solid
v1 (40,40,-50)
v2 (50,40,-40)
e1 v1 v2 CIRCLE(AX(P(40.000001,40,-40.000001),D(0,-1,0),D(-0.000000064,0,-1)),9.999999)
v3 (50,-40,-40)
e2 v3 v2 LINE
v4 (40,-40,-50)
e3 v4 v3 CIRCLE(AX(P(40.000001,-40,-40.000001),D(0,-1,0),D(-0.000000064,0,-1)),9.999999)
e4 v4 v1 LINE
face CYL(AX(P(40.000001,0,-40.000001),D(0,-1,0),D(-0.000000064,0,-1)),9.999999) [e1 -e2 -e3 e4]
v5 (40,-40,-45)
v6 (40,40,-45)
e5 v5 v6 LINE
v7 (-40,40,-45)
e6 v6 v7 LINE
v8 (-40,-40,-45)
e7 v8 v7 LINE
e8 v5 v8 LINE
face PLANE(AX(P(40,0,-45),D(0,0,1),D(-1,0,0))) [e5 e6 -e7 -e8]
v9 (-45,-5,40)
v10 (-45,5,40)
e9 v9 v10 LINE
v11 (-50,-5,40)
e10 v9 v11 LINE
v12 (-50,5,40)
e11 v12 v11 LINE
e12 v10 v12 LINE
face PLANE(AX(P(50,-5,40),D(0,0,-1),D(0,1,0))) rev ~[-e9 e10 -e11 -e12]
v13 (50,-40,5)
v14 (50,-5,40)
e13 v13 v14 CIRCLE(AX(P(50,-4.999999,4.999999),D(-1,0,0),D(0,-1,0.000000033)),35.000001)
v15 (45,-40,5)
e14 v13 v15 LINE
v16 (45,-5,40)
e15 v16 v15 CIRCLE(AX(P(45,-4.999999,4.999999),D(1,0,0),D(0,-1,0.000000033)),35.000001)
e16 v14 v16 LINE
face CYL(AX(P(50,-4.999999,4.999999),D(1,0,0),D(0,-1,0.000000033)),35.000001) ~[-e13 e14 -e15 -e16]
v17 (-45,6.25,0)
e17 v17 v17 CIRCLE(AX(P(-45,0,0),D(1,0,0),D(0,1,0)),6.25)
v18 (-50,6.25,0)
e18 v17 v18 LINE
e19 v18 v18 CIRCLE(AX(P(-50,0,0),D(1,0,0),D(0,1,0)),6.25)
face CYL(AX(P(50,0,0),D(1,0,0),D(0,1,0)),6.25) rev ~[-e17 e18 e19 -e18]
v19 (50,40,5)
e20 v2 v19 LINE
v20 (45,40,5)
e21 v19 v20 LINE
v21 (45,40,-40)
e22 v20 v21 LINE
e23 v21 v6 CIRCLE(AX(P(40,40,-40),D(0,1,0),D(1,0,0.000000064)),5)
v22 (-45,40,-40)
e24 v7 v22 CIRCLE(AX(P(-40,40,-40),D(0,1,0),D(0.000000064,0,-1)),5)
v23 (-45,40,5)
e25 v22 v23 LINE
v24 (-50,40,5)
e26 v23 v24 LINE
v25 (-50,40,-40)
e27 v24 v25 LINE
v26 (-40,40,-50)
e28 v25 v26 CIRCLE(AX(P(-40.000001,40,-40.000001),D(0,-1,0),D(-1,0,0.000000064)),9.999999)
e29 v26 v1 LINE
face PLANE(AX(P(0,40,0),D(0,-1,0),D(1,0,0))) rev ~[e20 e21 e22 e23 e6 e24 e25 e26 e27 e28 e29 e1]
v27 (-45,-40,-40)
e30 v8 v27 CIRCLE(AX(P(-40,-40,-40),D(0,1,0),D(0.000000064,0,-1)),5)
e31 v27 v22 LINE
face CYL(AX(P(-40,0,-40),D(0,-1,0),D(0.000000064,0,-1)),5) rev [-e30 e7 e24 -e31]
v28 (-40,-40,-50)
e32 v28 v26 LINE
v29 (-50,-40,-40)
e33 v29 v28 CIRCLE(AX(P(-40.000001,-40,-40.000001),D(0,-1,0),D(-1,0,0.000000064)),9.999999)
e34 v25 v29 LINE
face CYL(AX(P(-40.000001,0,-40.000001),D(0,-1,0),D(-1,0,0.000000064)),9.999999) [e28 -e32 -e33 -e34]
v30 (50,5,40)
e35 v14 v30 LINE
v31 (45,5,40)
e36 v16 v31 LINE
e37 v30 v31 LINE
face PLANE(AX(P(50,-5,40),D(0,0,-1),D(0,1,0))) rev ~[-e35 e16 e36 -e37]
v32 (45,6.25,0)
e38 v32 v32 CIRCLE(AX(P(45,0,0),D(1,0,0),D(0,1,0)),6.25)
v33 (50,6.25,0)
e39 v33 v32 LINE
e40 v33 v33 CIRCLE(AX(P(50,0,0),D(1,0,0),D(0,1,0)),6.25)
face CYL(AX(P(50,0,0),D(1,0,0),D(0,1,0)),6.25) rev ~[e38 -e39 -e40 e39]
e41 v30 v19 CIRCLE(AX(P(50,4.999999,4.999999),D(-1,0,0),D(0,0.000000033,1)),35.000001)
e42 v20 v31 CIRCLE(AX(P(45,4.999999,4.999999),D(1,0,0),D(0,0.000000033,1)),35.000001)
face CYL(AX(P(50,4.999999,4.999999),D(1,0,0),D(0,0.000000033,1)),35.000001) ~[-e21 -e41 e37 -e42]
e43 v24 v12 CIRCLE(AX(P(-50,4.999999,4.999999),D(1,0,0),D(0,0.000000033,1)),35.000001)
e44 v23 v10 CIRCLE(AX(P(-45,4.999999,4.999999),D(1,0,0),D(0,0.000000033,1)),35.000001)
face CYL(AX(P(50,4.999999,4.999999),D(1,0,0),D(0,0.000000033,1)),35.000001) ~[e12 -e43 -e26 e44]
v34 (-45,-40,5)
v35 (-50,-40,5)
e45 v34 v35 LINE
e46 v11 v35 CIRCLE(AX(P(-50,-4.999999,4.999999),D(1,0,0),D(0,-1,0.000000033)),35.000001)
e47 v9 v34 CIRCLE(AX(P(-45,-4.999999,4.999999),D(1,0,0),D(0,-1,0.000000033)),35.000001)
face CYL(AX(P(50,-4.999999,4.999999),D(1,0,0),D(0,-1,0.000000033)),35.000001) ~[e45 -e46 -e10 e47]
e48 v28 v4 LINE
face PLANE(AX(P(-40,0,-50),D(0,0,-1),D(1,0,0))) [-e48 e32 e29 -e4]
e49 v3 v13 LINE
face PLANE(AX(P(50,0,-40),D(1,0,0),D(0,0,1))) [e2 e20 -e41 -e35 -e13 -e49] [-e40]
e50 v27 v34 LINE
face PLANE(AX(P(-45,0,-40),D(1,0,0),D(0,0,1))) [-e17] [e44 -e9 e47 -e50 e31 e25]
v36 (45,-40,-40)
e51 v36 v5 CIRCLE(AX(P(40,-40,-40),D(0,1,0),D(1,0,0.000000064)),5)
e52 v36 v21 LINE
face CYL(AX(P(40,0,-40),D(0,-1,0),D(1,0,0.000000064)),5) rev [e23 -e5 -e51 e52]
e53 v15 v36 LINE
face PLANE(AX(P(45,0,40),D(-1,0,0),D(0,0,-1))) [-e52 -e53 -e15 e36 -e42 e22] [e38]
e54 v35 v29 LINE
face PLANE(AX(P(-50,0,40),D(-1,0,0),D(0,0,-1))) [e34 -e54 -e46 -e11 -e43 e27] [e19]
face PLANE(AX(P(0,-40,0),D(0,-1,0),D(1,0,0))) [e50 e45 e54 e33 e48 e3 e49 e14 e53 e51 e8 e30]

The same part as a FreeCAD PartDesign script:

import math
import FreeCAD as App
import Part
import Sketcher

V = App.Vector
Q = App.Units.Quantity

doc = App.newDocument("Part")
body = doc.addObject("PartDesign::Body", "Body")

# Sketch on XZ plane
sketch1 = body.newObject("Sketcher::SketchObject", "Sketch")
sketch1.AttachmentSupport = (doc.getObject("XZ_Plane"), [""])
sketch1.MapMode = "FlatFace"
sketch1.addGeometry([
    Part.ArcOfCircle(Part.Circle(V(40, 40, 0), V(0, 0, 1), 10), math.radians(0), math.radians(90)),  # 0
    Part.LineSegment(V(40, 50, 0), V(-40, 50, 0)),  # 1
    Part.ArcOfCircle(Part.Circle(V(-40, 40, 0), V(0, 0, 1), 10), math.radians(90), math.radians(180)),  # 2
    Part.LineSegment(V(-50, 40, 0), V(-50, -40, 0)),  # 3
    Part.ArcOfCircle(Part.Circle(V(-40, -40, 0), V(0, 0, 1), 10), math.radians(180), math.radians(270)),  # 4
    Part.LineSegment(V(-40, -50, 0), V(40, -50, 0)),  # 5
    Part.ArcOfCircle(Part.Circle(V(40, -40, 0), V(0, 0, 1), 10), math.radians(-90), math.radians(0)),  # 6
    Part.LineSegment(V(50, -40, 0), V(50, 40, 0)),  # 7
    Part.LineSegment(V(-40, 45, 0), V(40, 45, 0)),  # 8
    Part.ArcOfCircle(Part.Circle(V(40, 40, 0), V(0, 0, 1), 5), math.radians(0), math.radians(90)),  # 9
    Part.LineSegment(V(45, 40, 0), V(45, -40, 0)),  # 10
    Part.ArcOfCircle(Part.Circle(V(40, -40, 0), V(0, 0, 1), 5), math.radians(-90), math.radians(0)),  # 11
    Part.LineSegment(V(40, -45, 0), V(-40, -45, 0)),  # 12
    Part.ArcOfCircle(Part.Circle(V(-40, -40, 0), V(0, 0, 1), 5), math.radians(180), math.radians(270)),  # 13
    Part.LineSegment(V(-45, -40, 0), V(-45, 40, 0)),  # 14
    Part.ArcOfCircle(Part.Circle(V(-40, 40, 0), V(0, 0, 1), 5), math.radians(90), math.radians(180)),  # 15
], False)
sketch1.addConstraint([
    Sketcher.Constraint("Tangent", 0, 2, 1, 1),
    Sketcher.Constraint("Tangent", 1, 2, 2, 1),
    Sketcher.Constraint("Tangent", 2, 2, 3, 1),
    Sketcher.Constraint("Tangent", 3, 2, 4, 1),
    Sketcher.Constraint("Tangent", 4, 2, 5, 1),
    Sketcher.Constraint("Tangent", 5, 2, 6, 1),
    Sketcher.Constraint("Tangent", 6, 2, 7, 1),
    Sketcher.Constraint("Tangent", 7, 2, 0, 1),
    Sketcher.Constraint("Tangent", 8, 2, 9, 2),
    Sketcher.Constraint("Tangent", 9, 1, 10, 1),
    Sketcher.Constraint("Tangent", 10, 2, 11, 2),
    Sketcher.Constraint("Tangent", 11, 1, 12, 1),
    Sketcher.Constraint("Tangent", 12, 2, 13, 2),
    Sketcher.Constraint("Tangent", 13, 1, 14, 1),
    Sketcher.Constraint("Tangent", 14, 2, 15, 2),
    Sketcher.Constraint("Tangent", 15, 1, 8, 1),
    Sketcher.Constraint("Horizontal", 1),
    Sketcher.Constraint("Vertical", 3),
    Sketcher.Constraint("Horizontal", 5),
    Sketcher.Constraint("Vertical", 7),
    Sketcher.Constraint("Horizontal", 8),
    Sketcher.Constraint("Vertical", 10),
    Sketcher.Constraint("Horizontal", 12),
    Sketcher.Constraint("Vertical", 14),
    Sketcher.Constraint("Coincident", 9, 3, 0, 3),
    Sketcher.Constraint("Coincident", 11, 3, 6, 3),
    Sketcher.Constraint("Coincident", 13, 3, 4, 3),
    Sketcher.Constraint("Equal", 0, 2),
    Sketcher.Constraint("Equal", 2, 4),
    Sketcher.Constraint("Equal", 4, 6),
    Sketcher.Constraint("Equal", 13, 15),
    Sketcher.Constraint("Symmetric", 0, 3, 4, 3, -1, 1),
    Sketcher.Constraint("Equal", 12, 3),
    Sketcher.Constraint("Radius", 0, Q("9.999999 mm")),
    Sketcher.Constraint("Radius", 9, Q("5 mm")),
    Sketcher.Constraint("DistanceX", 1, 2, 1, 1, Q("80 mm")),
])
pad1 = body.newObject("PartDesign::Pad", "Pad")
pad1.Profile = sketch1
pad1.Length = 80
pad1.Midplane = True

# Sketch on YZ plane
sketch2 = body.newObject("Sketcher::SketchObject", "Sketch001")
sketch2.AttachmentSupport = (doc.getObject("YZ_Plane"), [""])
sketch2.MapMode = "FlatFace"
sketch2.AttachmentOffset = App.Placement(V(0, 0, 50), App.Rotation())
sketch2.addGeometry([
    Part.ArcOfCircle(Part.Circle(V(-5, 5, 0), V(0, 0, 1), 35), math.radians(90), math.radians(180)),  # 0
    Part.LineSegment(V(-5, 40, 0), V(5, 40, 0)),  # 1
    Part.ArcOfCircle(Part.Circle(V(5, 5, 0), V(0, 0, 1), 35), math.radians(0), math.radians(90)),  # 2
    Part.LineSegment(V(40, 5, 0), V(40, 50, 0)),  # 3
    Part.LineSegment(V(40, 50, 0), V(-40, 50, 0)),  # 4
    Part.LineSegment(V(-40, 50, 0), V(-40, 5, 0)),  # 5
    Part.Circle(V(0, 0, 0), V(0, 0, 1), 6),  # 6
], False)
sketch2.addConstraint([
    Sketcher.Constraint("Tangent", 0, 1, 1, 1),
    Sketcher.Constraint("Tangent", 1, 2, 2, 2),
    Sketcher.Constraint("Tangent", 2, 1, 3, 1),
    Sketcher.Constraint("Coincident", 3, 2, 4, 1),
    Sketcher.Constraint("Coincident", 4, 2, 5, 1),
    Sketcher.Constraint("Tangent", 5, 2, 0, 2),
    Sketcher.Constraint("Horizontal", 1),
    Sketcher.Constraint("Vertical", 3),
    Sketcher.Constraint("Horizontal", 4),
    Sketcher.Constraint("Vertical", 5),
    Sketcher.Constraint("Coincident", 6, 3, -1, 1),
    Sketcher.Constraint("Equal", 0, 2),
    Sketcher.Constraint("Radius", 0, Q("35.000001 mm")),
    Sketcher.Constraint("Diameter", 6, Q("12.5 mm")),
    Sketcher.Constraint("DistanceX", 1, 1, 1, 2, Q("10 mm")),
    Sketcher.Constraint("DistanceY", 3, 1, 3, 2, Q("45 mm")),
    Sketcher.Constraint("DistanceX", 0, 3, -1, 1, Q("4.999999 mm")),
    Sketcher.Constraint("DistanceY", -1, 1, 0, 3, Q("4.999999 mm")),
])
pocket1 = body.newObject("PartDesign::Pocket", "Pocket")
pocket1.Profile = sketch2
pocket1.Type = "ThroughAll"

doc.recompute()
